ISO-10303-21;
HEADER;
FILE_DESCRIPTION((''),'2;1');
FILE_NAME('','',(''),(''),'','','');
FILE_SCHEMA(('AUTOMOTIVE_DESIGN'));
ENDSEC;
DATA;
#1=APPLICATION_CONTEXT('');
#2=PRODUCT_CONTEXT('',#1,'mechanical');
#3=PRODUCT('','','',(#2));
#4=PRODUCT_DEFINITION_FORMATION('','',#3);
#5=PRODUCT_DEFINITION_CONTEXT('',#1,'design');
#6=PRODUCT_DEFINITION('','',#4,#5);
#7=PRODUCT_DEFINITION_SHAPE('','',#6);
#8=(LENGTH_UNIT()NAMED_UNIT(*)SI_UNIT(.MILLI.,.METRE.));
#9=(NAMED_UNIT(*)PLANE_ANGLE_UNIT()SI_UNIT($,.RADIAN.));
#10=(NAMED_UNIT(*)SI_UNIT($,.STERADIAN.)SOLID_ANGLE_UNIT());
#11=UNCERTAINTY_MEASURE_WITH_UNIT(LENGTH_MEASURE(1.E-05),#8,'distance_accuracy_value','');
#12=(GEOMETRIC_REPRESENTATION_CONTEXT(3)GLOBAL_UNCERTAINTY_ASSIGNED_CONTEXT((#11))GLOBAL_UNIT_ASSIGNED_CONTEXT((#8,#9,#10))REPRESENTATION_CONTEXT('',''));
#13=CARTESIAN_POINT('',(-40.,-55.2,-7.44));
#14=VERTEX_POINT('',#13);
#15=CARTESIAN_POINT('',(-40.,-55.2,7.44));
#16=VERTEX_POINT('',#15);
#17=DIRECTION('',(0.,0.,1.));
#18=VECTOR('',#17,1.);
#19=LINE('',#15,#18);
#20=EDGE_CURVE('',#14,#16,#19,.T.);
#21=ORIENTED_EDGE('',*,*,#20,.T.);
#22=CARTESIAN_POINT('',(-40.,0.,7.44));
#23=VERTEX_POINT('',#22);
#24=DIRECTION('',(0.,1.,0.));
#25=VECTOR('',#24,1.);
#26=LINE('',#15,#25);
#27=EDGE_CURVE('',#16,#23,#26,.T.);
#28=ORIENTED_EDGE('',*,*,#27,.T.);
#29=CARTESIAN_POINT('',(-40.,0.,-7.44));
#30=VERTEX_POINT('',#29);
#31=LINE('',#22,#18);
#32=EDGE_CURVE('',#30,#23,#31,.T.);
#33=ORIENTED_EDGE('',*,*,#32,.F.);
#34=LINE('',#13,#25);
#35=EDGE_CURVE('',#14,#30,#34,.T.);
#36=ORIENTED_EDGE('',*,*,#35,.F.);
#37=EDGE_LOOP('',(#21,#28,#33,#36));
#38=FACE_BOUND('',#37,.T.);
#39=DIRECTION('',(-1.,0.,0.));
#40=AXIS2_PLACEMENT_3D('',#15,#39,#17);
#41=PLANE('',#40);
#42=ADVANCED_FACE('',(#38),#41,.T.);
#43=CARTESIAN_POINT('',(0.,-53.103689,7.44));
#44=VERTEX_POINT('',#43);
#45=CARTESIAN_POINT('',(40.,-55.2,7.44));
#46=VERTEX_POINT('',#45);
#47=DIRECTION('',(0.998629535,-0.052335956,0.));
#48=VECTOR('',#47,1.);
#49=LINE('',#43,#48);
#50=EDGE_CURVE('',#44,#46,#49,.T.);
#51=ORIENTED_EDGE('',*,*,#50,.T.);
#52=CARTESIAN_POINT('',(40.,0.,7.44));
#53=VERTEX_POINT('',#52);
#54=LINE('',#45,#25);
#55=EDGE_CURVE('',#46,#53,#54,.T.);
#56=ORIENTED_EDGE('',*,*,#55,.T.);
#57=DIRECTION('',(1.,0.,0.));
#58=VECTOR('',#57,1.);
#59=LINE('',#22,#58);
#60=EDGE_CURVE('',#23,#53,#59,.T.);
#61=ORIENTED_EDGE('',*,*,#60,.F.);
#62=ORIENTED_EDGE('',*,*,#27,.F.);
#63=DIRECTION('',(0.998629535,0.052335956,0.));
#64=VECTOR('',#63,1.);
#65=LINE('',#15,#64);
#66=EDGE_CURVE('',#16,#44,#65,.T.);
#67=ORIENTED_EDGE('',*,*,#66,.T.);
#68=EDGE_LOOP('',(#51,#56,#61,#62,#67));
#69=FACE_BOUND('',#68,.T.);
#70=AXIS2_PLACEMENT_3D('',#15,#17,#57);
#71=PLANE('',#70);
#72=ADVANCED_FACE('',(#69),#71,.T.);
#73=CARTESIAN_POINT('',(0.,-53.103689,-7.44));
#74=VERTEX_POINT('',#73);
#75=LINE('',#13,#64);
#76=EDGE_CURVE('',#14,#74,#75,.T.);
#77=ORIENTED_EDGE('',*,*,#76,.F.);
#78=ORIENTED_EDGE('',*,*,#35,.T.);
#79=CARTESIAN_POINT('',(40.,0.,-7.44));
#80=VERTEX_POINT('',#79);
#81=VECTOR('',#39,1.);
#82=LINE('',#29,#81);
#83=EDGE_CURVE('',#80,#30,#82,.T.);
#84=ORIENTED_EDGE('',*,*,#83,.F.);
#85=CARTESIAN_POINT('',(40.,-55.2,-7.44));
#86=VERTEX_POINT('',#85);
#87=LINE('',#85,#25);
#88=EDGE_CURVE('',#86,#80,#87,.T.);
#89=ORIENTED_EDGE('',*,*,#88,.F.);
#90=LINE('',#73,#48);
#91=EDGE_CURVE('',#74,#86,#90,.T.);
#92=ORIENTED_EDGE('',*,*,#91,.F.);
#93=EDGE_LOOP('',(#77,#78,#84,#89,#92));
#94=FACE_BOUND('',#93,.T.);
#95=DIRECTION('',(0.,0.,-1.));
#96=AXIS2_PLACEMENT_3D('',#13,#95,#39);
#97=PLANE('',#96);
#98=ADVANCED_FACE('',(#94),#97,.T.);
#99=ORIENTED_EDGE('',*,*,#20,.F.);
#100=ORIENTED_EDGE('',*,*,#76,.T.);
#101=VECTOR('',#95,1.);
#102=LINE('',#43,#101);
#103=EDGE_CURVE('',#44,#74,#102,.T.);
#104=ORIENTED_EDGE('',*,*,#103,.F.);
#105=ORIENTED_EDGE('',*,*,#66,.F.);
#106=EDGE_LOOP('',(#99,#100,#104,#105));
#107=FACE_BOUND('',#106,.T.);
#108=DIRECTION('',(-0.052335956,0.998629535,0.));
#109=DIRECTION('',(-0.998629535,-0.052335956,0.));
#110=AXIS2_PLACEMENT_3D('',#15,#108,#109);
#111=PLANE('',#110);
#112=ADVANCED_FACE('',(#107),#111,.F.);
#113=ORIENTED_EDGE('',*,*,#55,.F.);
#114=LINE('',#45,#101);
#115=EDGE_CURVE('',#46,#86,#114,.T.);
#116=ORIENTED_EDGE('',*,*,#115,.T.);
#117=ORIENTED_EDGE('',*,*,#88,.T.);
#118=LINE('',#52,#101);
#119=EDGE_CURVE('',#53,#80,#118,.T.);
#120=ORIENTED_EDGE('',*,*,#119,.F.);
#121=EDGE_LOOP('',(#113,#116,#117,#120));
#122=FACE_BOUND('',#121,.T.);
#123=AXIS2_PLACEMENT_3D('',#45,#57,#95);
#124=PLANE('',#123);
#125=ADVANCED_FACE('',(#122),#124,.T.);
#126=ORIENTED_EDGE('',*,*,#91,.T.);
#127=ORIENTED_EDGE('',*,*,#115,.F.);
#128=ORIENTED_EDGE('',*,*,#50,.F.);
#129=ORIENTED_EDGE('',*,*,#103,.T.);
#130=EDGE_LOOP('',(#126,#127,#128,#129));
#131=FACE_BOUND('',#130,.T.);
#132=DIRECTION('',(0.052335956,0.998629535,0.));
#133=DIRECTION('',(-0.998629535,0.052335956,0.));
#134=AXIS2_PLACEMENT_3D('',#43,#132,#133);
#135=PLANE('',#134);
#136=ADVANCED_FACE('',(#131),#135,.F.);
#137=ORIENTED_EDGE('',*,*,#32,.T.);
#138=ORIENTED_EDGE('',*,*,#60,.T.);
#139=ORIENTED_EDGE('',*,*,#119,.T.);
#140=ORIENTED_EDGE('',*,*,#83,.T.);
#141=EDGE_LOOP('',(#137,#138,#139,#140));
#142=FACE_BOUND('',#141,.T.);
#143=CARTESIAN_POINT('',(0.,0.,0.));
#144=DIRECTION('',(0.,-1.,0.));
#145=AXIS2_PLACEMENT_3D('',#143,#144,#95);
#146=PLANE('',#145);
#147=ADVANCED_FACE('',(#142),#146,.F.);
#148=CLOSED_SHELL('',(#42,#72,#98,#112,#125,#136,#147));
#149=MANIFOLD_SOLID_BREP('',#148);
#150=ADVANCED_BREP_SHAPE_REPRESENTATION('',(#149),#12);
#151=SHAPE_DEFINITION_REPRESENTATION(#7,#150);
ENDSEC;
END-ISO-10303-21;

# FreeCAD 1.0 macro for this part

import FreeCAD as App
import Part
import Sketcher

V = App.Vector
Q = App.Units.Quantity

doc = App.newDocument("Part")
body = doc.addObject("PartDesign::Body", "Body")

sketch1 = body.newObject("Sketcher::SketchObject", "Sketch")
sketch1.AttachmentSupport = (doc.getObject("XZ_Plane"), [""])
sketch1.MapMode = "FlatFace"
sketch1.addGeometry([
    Part.LineSegment(V(-40, -7.44, 0), V(-40, 7.44, 0)),
    Part.LineSegment(V(-40, 7.44, 0), V(40, 7.44, 0)),
    Part.LineSegment(V(40, 7.44, 0), V(40, -7.44, 0)),
    Part.LineSegment(V(40, -7.44, 0), V(-40, -7.44, 0)),
], False)
sketch1.addConstraint([
    Sketcher.Constraint("Coincident", 0, 2, 1, 1),
    Sketcher.Constraint("Coincident", 1, 2, 2, 1),
    Sketcher.Constraint("Coincident", 2, 2, 3, 1),
    Sketcher.Constraint("Coincident", 3, 2, 0, 1),
    Sketcher.Constraint("Vertical", 0),
    Sketcher.Constraint("Horizontal", 1),
    Sketcher.Constraint("Vertical", 2),
    Sketcher.Constraint("Horizontal", 3),
    Sketcher.Constraint("Symmetric", 0, 2, 2, 2, -1, 1),
    Sketcher.Constraint("DistanceX", 1, 1, 1, 2, Q("80 mm")),
    Sketcher.Constraint("DistanceY", 0, 1, 0, 2, Q("14.88 mm")),
])
pad1 = body.newObject("PartDesign::Pad", "Pad")
pad1.Profile = sketch1
pad1.Length = 55.2

sketch2 = body.newObject("Sketcher::SketchObject", "Sketch001")
sketch2.AttachmentSupport = (doc.getObject("XY_Plane"), [""])
sketch2.MapMode = "FlatFace"
sketch2.AttachmentOffset = App.Placement(V(0, 0, -7.44), App.Rotation())
sketch2.addGeometry([
    Part.LineSegment(V(-40, -55.2, 0), V(0, -53.103689, 0)),
    Part.LineSegment(V(0, -53.103689, 0), V(40, -55.2, 0)),
    Part.LineSegment(V(40, -55.2, 0), V(-40, -55.2, 0)),
], False)
sketch2.addConstraint([
    Sketcher.Constraint("Coincident", 0, 2, 1, 1),
    Sketcher.Constraint("Coincident", 1, 2, 2, 1),
    Sketcher.Constraint("Coincident", 2, 2, 0, 1),
    Sketcher.Constraint("Horizontal", 2),
    Sketcher.Constraint("PointOnObject", 0, 2, -2),
    Sketcher.Constraint("Equal", 0, 1),
    Sketcher.Constraint("DistanceX", 2, 2, 2, 1, Q("80 mm")),
    Sketcher.Constraint("Angle", 0, Q("3 deg")),
    Sketcher.Constraint("DistanceY", 1, 2, -1, 1, Q("55.2 mm")),
])
pocket1 = body.newObject("PartDesign::Pocket", "Pocket")
pocket1.Profile = sketch2
pocket1.Type = "ThroughAll"
pocket1.Reversed = True

doc.recompute()
